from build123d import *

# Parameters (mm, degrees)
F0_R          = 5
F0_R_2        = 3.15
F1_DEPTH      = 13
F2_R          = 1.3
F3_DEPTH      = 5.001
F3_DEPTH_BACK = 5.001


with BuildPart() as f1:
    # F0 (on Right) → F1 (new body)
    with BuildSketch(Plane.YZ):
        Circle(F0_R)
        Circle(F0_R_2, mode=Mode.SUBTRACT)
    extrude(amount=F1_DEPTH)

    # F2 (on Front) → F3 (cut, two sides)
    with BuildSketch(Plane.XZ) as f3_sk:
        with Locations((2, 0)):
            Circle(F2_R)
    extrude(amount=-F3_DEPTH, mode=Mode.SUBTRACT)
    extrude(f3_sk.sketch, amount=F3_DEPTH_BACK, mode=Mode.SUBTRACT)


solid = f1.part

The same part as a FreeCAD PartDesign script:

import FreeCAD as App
import Part
import Sketcher

V = App.Vector

doc = App.newDocument("Part")
body = doc.addObject("PartDesign::Body", "Body")

sketch1 = body.newObject("Sketcher::SketchObject", "Sketch")
sketch1.AttachmentSupport = (doc.getObject("YZ_Plane"), [""])
sketch1.MapMode = "FlatFace"
sketch1.addGeometry([
    Part.Circle(V(0, 0, 0), V(0, 0, 1), 5),
    Part.Circle(V(0, 0, 0), V(0, 0, 1), 3.1),
], False)
sketch1.addConstraint([
    Sketcher.Constraint("Coincident", 0, 3, -1, 1),
    Sketcher.Constraint("Coincident", 1, 3, -1, 1),
    Sketcher.Constraint("Diameter", 0, 10.0),
    Sketcher.Constraint("Diameter", 1, 6.3),
])
pad1 = body.newObject("PartDesign::Pad", "Pad")
pad1.Profile = sketch1
pad1.Length = 13

sketch2 = body.newObject("Sketcher::SketchObject", "Sketch001")
sketch2.AttachmentSupport = (doc.getObject("XZ_Plane"), [""])
sketch2.MapMode = "FlatFace"
sketch2.addGeometry(Part.Circle(V(2, 0, 0), V(0, 0, 1), 1.3), False)
sketch2.addConstraint([
    Sketcher.Constraint("PointOnObject", 0, 3, -1),
    Sketcher.Constraint("Diameter", 0, 2.6),
    Sketcher.Constraint("DistanceX", -1, 1, 0, 3, 2.0),
])
pocket1 = body.newObject("PartDesign::Pocket", "Pocket")
pocket1.Profile = sketch2
pocket1.Type = "ThroughAll"
pocket1.Midplane = True

doc.recompute()
